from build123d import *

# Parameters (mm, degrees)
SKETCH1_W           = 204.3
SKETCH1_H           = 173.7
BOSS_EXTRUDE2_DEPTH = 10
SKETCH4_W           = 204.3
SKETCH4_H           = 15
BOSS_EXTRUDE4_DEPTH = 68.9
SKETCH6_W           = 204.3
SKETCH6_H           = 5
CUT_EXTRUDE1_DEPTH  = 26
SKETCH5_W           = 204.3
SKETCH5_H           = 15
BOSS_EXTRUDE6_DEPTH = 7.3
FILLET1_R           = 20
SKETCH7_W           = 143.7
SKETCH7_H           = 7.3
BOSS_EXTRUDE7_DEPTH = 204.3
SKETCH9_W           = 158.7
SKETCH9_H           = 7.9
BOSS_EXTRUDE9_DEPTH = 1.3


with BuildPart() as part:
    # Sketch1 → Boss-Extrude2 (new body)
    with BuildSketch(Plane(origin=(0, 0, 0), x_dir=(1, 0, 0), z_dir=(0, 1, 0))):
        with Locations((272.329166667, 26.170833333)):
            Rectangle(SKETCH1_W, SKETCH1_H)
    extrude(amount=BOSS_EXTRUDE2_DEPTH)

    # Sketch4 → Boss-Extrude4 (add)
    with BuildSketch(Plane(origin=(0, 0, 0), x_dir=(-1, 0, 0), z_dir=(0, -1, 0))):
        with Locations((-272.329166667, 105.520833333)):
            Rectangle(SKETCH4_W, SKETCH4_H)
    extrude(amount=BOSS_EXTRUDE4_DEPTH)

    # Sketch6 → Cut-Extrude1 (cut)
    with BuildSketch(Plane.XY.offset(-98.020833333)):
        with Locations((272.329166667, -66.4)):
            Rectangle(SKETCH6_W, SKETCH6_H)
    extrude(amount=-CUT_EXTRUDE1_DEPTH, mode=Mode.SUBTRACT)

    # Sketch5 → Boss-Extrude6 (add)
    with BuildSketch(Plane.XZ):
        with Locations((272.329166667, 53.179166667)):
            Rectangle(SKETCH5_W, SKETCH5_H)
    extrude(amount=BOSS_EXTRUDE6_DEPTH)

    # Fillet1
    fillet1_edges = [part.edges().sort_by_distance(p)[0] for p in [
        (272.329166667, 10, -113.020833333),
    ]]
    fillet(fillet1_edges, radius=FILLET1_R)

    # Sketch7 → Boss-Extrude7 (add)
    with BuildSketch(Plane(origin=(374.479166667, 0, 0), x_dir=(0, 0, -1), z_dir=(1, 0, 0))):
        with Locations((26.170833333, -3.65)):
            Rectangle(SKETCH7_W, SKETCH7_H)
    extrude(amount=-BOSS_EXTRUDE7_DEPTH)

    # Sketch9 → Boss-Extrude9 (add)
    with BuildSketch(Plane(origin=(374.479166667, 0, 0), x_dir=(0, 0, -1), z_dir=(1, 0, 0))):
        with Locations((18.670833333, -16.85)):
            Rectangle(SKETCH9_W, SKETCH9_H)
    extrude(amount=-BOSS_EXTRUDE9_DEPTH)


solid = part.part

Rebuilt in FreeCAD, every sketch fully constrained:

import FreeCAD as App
import Part
import Sketcher

V = App.Vector


def edges_at(feature, points):
    """Names of the edges that pass closest to the given points."""
    edges = feature.Shape.Edges
    near = lambda p: min(range(len(edges)), key=lambda i: edges[i].distToShape(Part.Vertex(*p))[0])
    return sorted({f"Edge{near(p) + 1}" for p in points})

doc = App.newDocument("Part")
body = doc.addObject("PartDesign::Body", "Body")

sketch1 = doc.addObject("Sketcher::SketchObject", "Sketch")
body.addObject(sketch1)
sketch1.AttachmentSupport = (doc.XZ_Plane, [""])
sketch1.MapMode = "FlatFace"
sketch1.addGeometry([
    Part.LineSegment(V(170, -113, 0), V(170, 61, 0)),
    Part.LineSegment(V(170, 61, 0), V(374, 61, 0)),
    Part.LineSegment(V(374, 61, 0), V(374, -113, 0)),
    Part.LineSegment(V(374, -113, 0), V(170, -113, 0)),
], False)
sketch1.addConstraint([
    Sketcher.Constraint("Coincident", 0, 2, 1, 1),
    Sketcher.Constraint("Coincident", 1, 2, 2, 1),
    Sketcher.Constraint("Coincident", 2, 2, 3, 1),
    Sketcher.Constraint("Coincident", 3, 2, 0, 1),
    Sketcher.Constraint("Vertical", 0),
    Sketcher.Constraint("Horizontal", 1),
    Sketcher.Constraint("Vertical", 2),
    Sketcher.Constraint("Horizontal", 3),
    Sketcher.Constraint("DistanceX", 1, 1, 1, 2, 204.3),
    Sketcher.Constraint("DistanceY", 0, 1, 0, 2, 173.7),
    Sketcher.Constraint("DistanceX", -1, 1, 0, 2, 170.179167),
    Sketcher.Constraint("DistanceY", -1, 1, 0, 2, 60.679167),
])
pad1 = doc.addObject("PartDesign::Pad", "Pad")
body.addObject(pad1)
pad1.Profile = sketch1
pad1.Length = 10
pad1.Reversed = True

sketch2 = doc.addObject("Sketcher::SketchObject", "Sketch001")
body.addObject(sketch2)
sketch2.AttachmentSupport = (doc.XZ_Plane, [""])
sketch2.MapMode = "FlatFace"
sketch2.addGeometry([
    Part.LineSegment(V(374, -113, 0), V(374, -98, 0)),
    Part.LineSegment(V(374, -98, 0), V(170, -98, 0)),
    Part.LineSegment(V(170, -98, 0), V(170, -113, 0)),
    Part.LineSegment(V(170, -113, 0), V(374, -113, 0)),
], False)
sketch2.addConstraint([
    Sketcher.Constraint("Coincident", 0, 2, 1, 1),
    Sketcher.Constraint("Coincident", 1, 2, 2, 1),
    Sketcher.Constraint("Coincident", 2, 2, 3, 1),
    Sketcher.Constraint("Coincident", 3, 2, 0, 1),
    Sketcher.Constraint("Vertical", 0),
    Sketcher.Constraint("Horizontal", 1),
    Sketcher.Constraint("Vertical", 2),
    Sketcher.Constraint("Horizontal", 3),
    Sketcher.Constraint("DistanceY", 0, 1, 0, 2, 15.0),
    Sketcher.Constraint("DistanceX", 1, 2, 1, 1, 204.3),
    Sketcher.Constraint("DistanceX", -1, 1, 0, 2, 374.479167),
    Sketcher.Constraint("DistanceY", 0, 2, -1, 1, 98.020833),
])
pad2 = doc.addObject("PartDesign::Pad", "Pad001")
body.addObject(pad2)
pad2.Profile = sketch2
pad2.Length = 68.9

sketch3 = doc.addObject("Sketcher::SketchObject", "Sketch002")
body.addObject(sketch3)
sketch3.AttachmentSupport = (doc.XY_Plane, [""])
sketch3.MapMode = "FlatFace"
sketch3.AttachmentOffset = App.Placement(V(0, 0, -98.020833), App.Rotation())
sketch3.addGeometry([
    Part.LineSegment(V(170, -64, 0), V(170, -69, 0)),
    Part.LineSegment(V(170, -69, 0), V(374, -69, 0)),
    Part.LineSegment(V(374, -69, 0), V(374, -64, 0)),
    Part.LineSegment(V(374, -64, 0), V(170, -64, 0)),
], False)
sketch3.addConstraint([
    Sketcher.Constraint("Coincident", 0, 2, 1, 1),
    Sketcher.Constraint("Coincident", 1, 2, 2, 1),
    Sketcher.Constraint("Coincident", 2, 2, 3, 1),
    Sketcher.Constraint("Coincident", 3, 2, 0, 1),
    Sketcher.Constraint("Vertical", 0),
    Sketcher.Constraint("Horizontal", 1),
    Sketcher.Constraint("Vertical", 2),
    Sketcher.Constraint("Horizontal", 3),
    Sketcher.Constraint("DistanceY", 0, 2, 0, 1, 5.0),
    Sketcher.Constraint("DistanceX", 1, 1, 1, 2, 204.3),
    Sketcher.Constraint("DistanceY", 0, 2, -1, 1, 68.9),
    Sketcher.Constraint("DistanceX", -1, 1, 0, 2, 170.179167),
])
pocket1 = doc.addObject("PartDesign::Pocket", "Pocket")
body.addObject(pocket1)
pocket1.Profile = sketch3
pocket1.Length = 26

sketch4 = doc.addObject("Sketcher::SketchObject", "Sketch003")
body.addObject(sketch4)
sketch4.AttachmentSupport = (doc.XZ_Plane, [""])
sketch4.MapMode = "FlatFace"
sketch4.addGeometry([
    Part.LineSegment(V(170, 61, 0), V(170, 46, 0)),
    Part.LineSegment(V(170, 46, 0), V(374, 46, 0)),
    Part.LineSegment(V(374, 46, 0), V(374, 61, 0)),
    Part.LineSegment(V(374, 61, 0), V(170, 61, 0)),
], False)
sketch4.addConstraint([
    Sketcher.Constraint("Coincident", 0, 2, 1, 1),
    Sketcher.Constraint("Coincident", 1, 2, 2, 1),
    Sketcher.Constraint("Coincident", 2, 2, 3, 1),
    Sketcher.Constraint("Coincident", 3, 2, 0, 1),
    Sketcher.Constraint("Vertical", 0),
    Sketcher.Constraint("Horizontal", 1),
    Sketcher.Constraint("Vertical", 2),
    Sketcher.Constraint("Horizontal", 3),
    Sketcher.Constraint("DistanceY", 0, 2, 0, 1, 15.0),
    Sketcher.Constraint("DistanceX", 1, 1, 1, 2, 204.3),
    Sketcher.Constraint("DistanceX", -1, 1, 0, 2, 170.179167),
    Sketcher.Constraint("DistanceY", -1, 1, 0, 2, 45.679167),
])
pad3 = doc.addObject("PartDesign::Pad", "Pad002")
body.addObject(pad3)
pad3.Profile = sketch4
pad3.Length = 7.3
doc.recompute()

fillet = doc.addObject("PartDesign::Fillet", "Fillet")
body.addObject(fillet)
fillet.Base = (pad3, edges_at(pad3, [(272.329, 10, -113.021)]))
fillet.Radius = 20

sketch5 = doc.addObject("Sketcher::SketchObject", "Sketch004")
body.addObject(sketch5)
sketch5.AttachmentSupport = (doc.YZ_Plane, [""])
sketch5.MapMode = "FlatFace"
sketch5.AttachmentOffset = App.Placement(V(0, 0, 374.479167), App.Rotation())
sketch5.addGeometry([
    Part.LineSegment(V(0, 46, 0), V(-7, 46, 0)),
    Part.LineSegment(V(-7, 46, 0), V(-7, -98, 0)),
    Part.LineSegment(V(-7, -98, 0), V(0, -98, 0)),
    Part.LineSegment(V(0, -98, 0), V(0, 46, 0)),
], False)
sketch5.addConstraint([
    Sketcher.Constraint("Coincident", 0, 2, 1, 1),
    Sketcher.Constraint("Coincident", 1, 2, 2, 1),
    Sketcher.Constraint("Coincident", 2, 2, 3, 1),
    Sketcher.Constraint("Coincident", 3, 2, 0, 1),
    Sketcher.Constraint("Horizontal", 0),
    Sketcher.Constraint("Vertical", 1),
    Sketcher.Constraint("Horizontal", 2),
    Sketcher.Constraint("Vertical", 3),
    Sketcher.Constraint("PointOnObject", 2, 2, -2),
    Sketcher.Constraint("DistanceX", 0, 2, 0, 1, 7.3),
    Sketcher.Constraint("DistanceY", 1, 2, 1, 1, 143.7),
    Sketcher.Constraint("DistanceY", -1, 1, 0, 2, 45.679167),
])
pad4 = doc.addObject("PartDesign::Pad", "Pad003")
body.addObject(pad4)
pad4.Profile = sketch5
pad4.Length = 204.3
pad4.Reversed = True

sketch6 = doc.addObject("Sketcher::SketchObject", "Sketch005")
body.addObject(sketch6)
sketch6.AttachmentSupport = (doc.YZ_Plane, [""])
sketch6.MapMode = "FlatFace"
sketch6.AttachmentOffset = App.Placement(V(0, 0, 374.479167), App.Rotation())
sketch6.addGeometry([
    Part.LineSegment(V(-13, 61, 0), V(-21, 61, 0)),
    Part.LineSegment(V(-21, 61, 0), V(-21, -98, 0)),
    Part.LineSegment(V(-21, -98, 0), V(-13, -98, 0)),
    Part.LineSegment(V(-13, -98, 0), V(-13, 61, 0)),
], False)
sketch6.addConstraint([
    Sketcher.Constraint("Coincident", 0, 2, 1, 1),
    Sketcher.Constraint("Coincident", 1, 2, 2, 1),
    Sketcher.Constraint("Coincident", 2, 2, 3, 1),
    Sketcher.Constraint("Coincident", 3, 2, 0, 1),
    Sketcher.Constraint("Horizontal", 0),
    Sketcher.Constraint("Vertical", 1),
    Sketcher.Constraint("Horizontal", 2),
    Sketcher.Constraint("Vertical", 3),
    Sketcher.Constraint("DistanceX", 0, 2, 0, 1, 7.9),
    Sketcher.Constraint("DistanceY", 1, 2, 1, 1, 158.7),
    Sketcher.Constraint("DistanceX", 0, 2, -1, 1, 20.8),
    Sketcher.Constraint("DistanceY", -1, 1, 0, 2, 60.679167),
])
pad5 = doc.addObject("PartDesign::Pad", "Pad004")
body.addObject(pad5)
pad5.Profile = sketch6
pad5.Length = 1.3
pad5.Reversed = True

doc.recompute()
